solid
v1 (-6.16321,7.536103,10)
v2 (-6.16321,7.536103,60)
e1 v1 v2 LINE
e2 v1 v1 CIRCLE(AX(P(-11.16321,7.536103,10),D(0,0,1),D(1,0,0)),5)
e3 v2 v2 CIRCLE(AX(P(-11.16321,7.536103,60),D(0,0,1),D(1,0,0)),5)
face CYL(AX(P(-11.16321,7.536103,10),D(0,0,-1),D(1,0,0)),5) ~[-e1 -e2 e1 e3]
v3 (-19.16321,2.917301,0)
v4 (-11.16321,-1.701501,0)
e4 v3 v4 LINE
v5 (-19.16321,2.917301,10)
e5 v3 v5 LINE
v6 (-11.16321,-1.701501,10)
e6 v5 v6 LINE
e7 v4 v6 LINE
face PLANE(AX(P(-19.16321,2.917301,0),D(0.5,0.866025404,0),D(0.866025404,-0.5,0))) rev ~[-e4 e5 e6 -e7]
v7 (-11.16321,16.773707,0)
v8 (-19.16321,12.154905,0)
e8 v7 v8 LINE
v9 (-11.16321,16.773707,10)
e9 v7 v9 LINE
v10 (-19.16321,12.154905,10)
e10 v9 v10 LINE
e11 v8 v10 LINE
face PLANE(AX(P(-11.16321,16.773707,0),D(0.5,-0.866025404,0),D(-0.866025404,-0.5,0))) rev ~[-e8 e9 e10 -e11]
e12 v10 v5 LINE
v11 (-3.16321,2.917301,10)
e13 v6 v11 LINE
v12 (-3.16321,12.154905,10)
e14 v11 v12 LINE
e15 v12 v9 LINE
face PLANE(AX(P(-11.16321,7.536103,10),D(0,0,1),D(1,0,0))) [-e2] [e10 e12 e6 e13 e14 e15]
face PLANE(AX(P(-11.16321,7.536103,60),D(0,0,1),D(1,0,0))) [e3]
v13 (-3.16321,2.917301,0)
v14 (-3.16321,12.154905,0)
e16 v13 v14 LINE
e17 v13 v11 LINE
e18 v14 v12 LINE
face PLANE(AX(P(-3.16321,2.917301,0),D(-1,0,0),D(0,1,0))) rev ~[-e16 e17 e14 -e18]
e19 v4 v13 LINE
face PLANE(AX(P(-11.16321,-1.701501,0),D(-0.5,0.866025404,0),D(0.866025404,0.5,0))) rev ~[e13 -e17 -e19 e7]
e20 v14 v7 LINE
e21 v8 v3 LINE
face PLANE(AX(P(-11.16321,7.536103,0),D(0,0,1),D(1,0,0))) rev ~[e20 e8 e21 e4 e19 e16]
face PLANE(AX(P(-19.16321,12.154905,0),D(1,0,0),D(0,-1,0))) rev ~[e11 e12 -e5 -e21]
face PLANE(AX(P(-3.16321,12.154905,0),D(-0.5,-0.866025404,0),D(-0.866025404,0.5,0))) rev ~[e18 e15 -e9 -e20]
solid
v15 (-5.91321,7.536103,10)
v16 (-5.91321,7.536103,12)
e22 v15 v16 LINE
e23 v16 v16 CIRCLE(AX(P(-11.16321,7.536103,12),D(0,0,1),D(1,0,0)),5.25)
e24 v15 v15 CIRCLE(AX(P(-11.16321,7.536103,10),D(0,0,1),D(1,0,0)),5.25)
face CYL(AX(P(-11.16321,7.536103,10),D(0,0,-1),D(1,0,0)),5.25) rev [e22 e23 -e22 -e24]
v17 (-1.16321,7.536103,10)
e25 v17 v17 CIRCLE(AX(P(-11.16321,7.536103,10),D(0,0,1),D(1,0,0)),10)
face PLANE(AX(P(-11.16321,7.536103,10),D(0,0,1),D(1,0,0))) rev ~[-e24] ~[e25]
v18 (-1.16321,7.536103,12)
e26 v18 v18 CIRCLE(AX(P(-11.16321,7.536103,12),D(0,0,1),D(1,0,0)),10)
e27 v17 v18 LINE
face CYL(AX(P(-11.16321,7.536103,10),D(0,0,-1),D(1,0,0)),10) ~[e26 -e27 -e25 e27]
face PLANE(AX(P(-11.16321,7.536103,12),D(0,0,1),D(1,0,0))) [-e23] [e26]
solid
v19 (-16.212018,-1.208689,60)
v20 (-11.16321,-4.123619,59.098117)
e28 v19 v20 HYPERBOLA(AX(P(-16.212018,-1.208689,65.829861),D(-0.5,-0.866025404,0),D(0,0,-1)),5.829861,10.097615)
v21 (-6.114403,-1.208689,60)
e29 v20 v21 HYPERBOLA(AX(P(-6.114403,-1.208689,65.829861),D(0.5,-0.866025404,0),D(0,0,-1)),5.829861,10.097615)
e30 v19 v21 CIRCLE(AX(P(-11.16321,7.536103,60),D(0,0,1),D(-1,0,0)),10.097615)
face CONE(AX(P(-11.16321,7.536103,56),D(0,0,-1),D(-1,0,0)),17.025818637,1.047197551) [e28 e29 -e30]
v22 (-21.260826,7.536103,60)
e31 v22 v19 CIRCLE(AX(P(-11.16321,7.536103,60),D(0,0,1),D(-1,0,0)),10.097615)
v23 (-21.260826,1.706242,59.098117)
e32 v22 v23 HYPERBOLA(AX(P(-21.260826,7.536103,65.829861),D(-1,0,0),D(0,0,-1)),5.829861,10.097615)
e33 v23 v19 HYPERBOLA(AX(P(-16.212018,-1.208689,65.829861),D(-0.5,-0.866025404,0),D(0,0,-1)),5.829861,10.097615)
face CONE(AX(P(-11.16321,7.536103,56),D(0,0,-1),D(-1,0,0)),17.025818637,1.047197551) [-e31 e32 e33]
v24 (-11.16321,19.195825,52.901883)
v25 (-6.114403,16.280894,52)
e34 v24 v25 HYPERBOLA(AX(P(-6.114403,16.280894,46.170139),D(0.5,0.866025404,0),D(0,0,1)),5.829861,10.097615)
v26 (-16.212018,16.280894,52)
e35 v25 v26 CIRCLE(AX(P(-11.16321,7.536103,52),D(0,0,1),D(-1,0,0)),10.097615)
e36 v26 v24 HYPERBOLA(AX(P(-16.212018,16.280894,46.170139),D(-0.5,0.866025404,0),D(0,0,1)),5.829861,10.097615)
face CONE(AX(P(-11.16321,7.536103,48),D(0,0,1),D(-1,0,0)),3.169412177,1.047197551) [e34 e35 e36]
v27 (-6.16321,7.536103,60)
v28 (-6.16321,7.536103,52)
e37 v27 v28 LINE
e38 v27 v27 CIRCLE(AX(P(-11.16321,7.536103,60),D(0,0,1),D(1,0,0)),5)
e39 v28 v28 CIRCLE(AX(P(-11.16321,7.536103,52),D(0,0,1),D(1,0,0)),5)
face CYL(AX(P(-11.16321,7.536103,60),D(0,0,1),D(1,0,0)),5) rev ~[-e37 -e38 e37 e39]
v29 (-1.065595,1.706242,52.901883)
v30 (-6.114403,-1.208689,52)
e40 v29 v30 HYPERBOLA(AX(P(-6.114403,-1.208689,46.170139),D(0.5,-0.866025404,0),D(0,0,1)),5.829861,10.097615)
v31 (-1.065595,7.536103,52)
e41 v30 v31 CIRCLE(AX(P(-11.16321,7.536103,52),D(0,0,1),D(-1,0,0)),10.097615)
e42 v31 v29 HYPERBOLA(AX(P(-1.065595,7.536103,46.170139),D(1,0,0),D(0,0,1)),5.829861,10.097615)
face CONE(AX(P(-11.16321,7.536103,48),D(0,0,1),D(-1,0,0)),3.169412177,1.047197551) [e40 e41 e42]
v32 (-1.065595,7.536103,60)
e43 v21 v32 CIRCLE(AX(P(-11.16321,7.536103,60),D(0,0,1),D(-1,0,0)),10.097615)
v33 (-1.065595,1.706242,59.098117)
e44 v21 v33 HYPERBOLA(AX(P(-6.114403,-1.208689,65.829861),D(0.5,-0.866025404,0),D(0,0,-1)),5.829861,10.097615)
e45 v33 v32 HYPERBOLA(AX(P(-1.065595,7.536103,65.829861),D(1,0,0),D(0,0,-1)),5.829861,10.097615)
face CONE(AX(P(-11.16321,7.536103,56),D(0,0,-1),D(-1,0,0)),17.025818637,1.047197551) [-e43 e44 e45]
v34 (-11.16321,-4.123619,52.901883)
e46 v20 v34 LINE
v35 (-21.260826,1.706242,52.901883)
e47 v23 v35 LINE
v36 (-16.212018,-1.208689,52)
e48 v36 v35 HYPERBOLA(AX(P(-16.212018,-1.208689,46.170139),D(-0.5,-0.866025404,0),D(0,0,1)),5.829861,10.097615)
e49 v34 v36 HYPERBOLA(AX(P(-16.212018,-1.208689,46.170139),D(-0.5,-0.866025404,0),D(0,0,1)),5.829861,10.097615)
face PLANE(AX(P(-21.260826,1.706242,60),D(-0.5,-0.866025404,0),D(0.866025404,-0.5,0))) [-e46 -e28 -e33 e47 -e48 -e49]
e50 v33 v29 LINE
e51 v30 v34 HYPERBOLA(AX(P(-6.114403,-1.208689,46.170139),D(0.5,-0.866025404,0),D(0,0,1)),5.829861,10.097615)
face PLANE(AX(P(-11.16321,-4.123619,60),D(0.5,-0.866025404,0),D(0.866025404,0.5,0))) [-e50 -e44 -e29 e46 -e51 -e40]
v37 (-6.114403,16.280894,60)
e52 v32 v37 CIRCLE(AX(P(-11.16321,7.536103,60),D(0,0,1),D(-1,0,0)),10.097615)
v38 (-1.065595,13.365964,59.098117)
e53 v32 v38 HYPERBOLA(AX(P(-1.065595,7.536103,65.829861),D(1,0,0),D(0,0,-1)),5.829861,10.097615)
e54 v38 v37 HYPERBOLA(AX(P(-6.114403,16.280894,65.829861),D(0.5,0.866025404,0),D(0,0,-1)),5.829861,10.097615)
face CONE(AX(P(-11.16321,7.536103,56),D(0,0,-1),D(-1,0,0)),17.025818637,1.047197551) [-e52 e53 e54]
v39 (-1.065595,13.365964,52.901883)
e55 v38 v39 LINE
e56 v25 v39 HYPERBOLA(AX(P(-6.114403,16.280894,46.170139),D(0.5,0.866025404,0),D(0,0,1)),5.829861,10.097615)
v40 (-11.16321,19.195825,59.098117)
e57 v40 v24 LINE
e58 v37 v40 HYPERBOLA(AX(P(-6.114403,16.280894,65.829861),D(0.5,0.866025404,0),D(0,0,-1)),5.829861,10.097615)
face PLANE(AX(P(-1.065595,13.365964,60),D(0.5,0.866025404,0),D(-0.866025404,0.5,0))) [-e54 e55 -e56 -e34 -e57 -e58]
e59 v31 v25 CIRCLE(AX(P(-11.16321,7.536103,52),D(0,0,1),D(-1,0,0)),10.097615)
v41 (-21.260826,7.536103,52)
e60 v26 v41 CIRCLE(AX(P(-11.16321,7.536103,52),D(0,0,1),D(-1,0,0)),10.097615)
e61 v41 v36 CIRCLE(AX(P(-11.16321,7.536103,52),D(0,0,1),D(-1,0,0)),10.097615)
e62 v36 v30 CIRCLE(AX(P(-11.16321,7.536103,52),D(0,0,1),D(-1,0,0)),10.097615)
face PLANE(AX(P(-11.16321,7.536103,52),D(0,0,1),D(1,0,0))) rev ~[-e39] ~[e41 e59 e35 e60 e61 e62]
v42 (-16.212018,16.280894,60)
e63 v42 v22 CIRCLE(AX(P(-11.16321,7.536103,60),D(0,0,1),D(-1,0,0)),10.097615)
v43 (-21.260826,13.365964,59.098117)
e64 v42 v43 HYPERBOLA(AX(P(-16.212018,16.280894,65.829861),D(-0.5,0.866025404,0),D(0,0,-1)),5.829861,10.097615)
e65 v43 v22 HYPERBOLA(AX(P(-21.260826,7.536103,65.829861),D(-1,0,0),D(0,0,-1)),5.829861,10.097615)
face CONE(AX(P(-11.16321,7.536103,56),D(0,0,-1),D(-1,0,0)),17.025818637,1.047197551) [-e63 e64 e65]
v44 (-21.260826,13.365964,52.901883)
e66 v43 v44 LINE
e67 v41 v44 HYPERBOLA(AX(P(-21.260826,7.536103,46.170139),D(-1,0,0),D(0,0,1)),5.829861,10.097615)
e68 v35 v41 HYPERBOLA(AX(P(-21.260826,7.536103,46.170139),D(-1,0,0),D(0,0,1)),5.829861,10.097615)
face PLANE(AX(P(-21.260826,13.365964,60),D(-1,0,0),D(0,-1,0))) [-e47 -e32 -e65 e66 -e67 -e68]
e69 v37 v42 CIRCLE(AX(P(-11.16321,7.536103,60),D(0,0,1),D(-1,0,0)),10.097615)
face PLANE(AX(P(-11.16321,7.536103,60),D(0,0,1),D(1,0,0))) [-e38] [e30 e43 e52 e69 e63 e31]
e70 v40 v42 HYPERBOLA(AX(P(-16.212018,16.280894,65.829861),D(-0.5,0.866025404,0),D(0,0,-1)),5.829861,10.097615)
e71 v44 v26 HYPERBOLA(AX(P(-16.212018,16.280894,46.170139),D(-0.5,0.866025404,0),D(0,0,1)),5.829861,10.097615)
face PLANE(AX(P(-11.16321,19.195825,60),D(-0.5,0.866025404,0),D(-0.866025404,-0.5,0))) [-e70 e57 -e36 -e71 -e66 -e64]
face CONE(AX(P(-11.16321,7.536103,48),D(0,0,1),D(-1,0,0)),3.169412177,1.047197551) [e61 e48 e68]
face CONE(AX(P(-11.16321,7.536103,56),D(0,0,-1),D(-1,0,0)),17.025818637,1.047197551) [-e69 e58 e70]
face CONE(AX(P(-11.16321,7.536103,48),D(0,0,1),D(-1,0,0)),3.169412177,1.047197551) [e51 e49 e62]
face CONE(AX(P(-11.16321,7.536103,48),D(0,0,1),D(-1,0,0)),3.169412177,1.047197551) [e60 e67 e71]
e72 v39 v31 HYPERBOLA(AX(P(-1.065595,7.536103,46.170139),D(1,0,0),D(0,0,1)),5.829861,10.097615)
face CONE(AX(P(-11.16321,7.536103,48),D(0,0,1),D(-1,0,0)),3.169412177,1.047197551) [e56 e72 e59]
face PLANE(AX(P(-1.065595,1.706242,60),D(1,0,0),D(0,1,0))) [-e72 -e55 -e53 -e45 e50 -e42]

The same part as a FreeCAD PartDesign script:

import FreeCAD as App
import Part
import Sketcher

V = App.Vector
Q = App.Units.Quantity

doc = App.newDocument("Part")
body = doc.addObject("PartDesign::Body", "Body")

# Sketch on XY plane
sketch1 = doc.addObject("Sketcher::SketchObject", "Sketch")
body.addObject(sketch1)
sketch1.AttachmentSupport = (doc.XY_Plane, [""])
sketch1.MapMode = "FlatFace"
sketch1.addGeometry(Part.LineSegment(V(-11, -2, 0), V(-3, 3, 0)), False)
sketch1.addGeometry(Part.LineSegment(V(-3, 3, 0), V(-3, 12, 0)), False)
sketch1.addGeometry(Part.LineSegment(V(-3, 12, 0), V(-11, 17, 0)), False)
sketch1.addGeometry(Part.LineSegment(V(-11, 17, 0), V(-19, 12, 0)), False)
sketch1.addGeometry(Part.LineSegment(V(-19, 12, 0), V(-19, 3, 0)), False)
sketch1.addGeometry(Part.LineSegment(V(-19, 3, 0), V(-11, -2, 0)), False)
sketch1.addConstraint(Sketcher.Constraint("Coincident", 0, 2, 1, 1))
sketch1.addConstraint(Sketcher.Constraint("Coincident", 1, 2, 2, 1))
sketch1.addConstraint(Sketcher.Constraint("Coincident", 2, 2, 3, 1))
sketch1.addConstraint(Sketcher.Constraint("Coincident", 3, 2, 4, 1))
sketch1.addConstraint(Sketcher.Constraint("Coincident", 4, 2, 5, 1))
sketch1.addConstraint(Sketcher.Constraint("Coincident", 5, 2, 0, 1))
sketch1.addConstraint(Sketcher.Constraint("Vertical", 1))
sketch1.addConstraint(Sketcher.Constraint("Vertical", 4))
sketch1.addConstraint(Sketcher.Constraint("Parallel", 0, 3))
sketch1.addConstraint(Sketcher.Constraint("Parallel", 2, 5))
sketch1.addConstraint(Sketcher.Constraint("Horizontal", 1, 2, 3, 2))
sketch1.addConstraint(Sketcher.Constraint("Horizontal", 0, 2, 4, 2))
sketch1.addConstraint(Sketcher.Constraint("Vertical", 2, 2, 5, 2))
sketch1.addConstraint(Sketcher.Constraint("Angle", 0, Q("30 deg")))
sketch1.addConstraint(Sketcher.Constraint("DistanceX", 2, 2, 1, 2, Q("8 mm")))
sketch1.addConstraint(Sketcher.Constraint("DistanceY", -1, 1, 0, 2, Q("2.917301 mm")))
sketch1.addConstraint(Sketcher.Constraint("DistanceY", 1, 1, 1, 2, Q("9.237604 mm")))
sketch1.addConstraint(Sketcher.Constraint("DistanceX", 0, 2, -1, 1, Q("3.16321 mm")))
pad1 = doc.addObject("PartDesign::Pad", "Pad")
body.addObject(pad1)
pad1.Profile = sketch1
pad1.Length = 10

# Sketch on XY plane
sketch2 = doc.addObject("Sketcher::SketchObject", "Sketch001")
body.addObject(sketch2)
sketch2.AttachmentSupport = (doc.XY_Plane, [""])
sketch2.MapMode = "FlatFace"
sketch2.AttachmentOffset = App.Placement(V(0, 0, 10), App.Rotation())
sketch2.addGeometry(Part.Circle(V(-11, 8, 0), V(0, 0, 1), 5), False)
sketch2.addConstraint(Sketcher.Constraint("Diameter", 0, Q("10 mm")))
sketch2.addConstraint(Sketcher.Constraint("DistanceX", 0, 3, -1, 1, Q("11.16321 mm")))
sketch2.addConstraint(Sketcher.Constraint("DistanceY", -1, 1, 0, 3, Q("7.536103 mm")))
pad2 = doc.addObject("PartDesign::Pad", "Pad001")
body.addObject(pad2)
pad2.Profile = sketch2
pad2.Length = 50
body2 = doc.addObject("PartDesign::Body", "Body001")

# Sketch on XY plane
sketch3 = doc.addObject("Sketcher::SketchObject", "Sketch002")
body2.addObject(sketch3)
sketch3.AttachmentSupport = (doc.getObject("XY_Plane001"), [""])
sketch3.MapMode = "FlatFace"
sketch3.AttachmentOffset = App.Placement(V(0, 0, 10), App.Rotation())
sketch3.addGeometry(Part.Circle(V(-11, 8, 0), V(0, 0, 1), 10), False)
sketch3.addGeometry(Part.Circle(V(-11, 8, 0), V(0, 0, 1), 5), False)
sketch3.addConstraint(Sketcher.Constraint("Coincident", 1, 3, 0, 3))
sketch3.addConstraint(Sketcher.Constraint("Diameter", 0, Q("20 mm")))
sketch3.addConstraint(Sketcher.Constraint("Diameter", 1, Q("10.5 mm")))
sketch3.addConstraint(Sketcher.Constraint("DistanceX", 0, 3, -1, 1, Q("11.16321 mm")))
sketch3.addConstraint(Sketcher.Constraint("DistanceY", -1, 1, 0, 3, Q("7.536103 mm")))
pad3 = doc.addObject("PartDesign::Pad", "Pad002")
body2.addObject(pad3)
pad3.Profile = sketch3
pad3.Length = 2
body3 = doc.addObject("PartDesign::Body", "Body002")

# Sketch on XY plane
sketch4 = doc.addObject("Sketcher::SketchObject", "Sketch003")
body3.addObject(sketch4)
sketch4.AttachmentSupport = (doc.getObject("XY_Plane002"), [""])
sketch4.MapMode = "FlatFace"
sketch4.AttachmentOffset = App.Placement(V(0, 0, 60), App.Rotation())
sketch4.addGeometry(Part.LineSegment(V(-11, -4, 0), V(-1, 2, 0)), False)
sketch4.addGeometry(Part.LineSegment(V(-1, 2, 0), V(-1, 13, 0)), False)
sketch4.addGeometry(Part.LineSegment(V(-1, 13, 0), V(-11, 19, 0)), False)
sketch4.addGeometry(Part.LineSegment(V(-11, 19, 0), V(-21, 13, 0)), False)
sketch4.addGeometry(Part.LineSegment(V(-21, 13, 0), V(-21, 2, 0)), False)
sketch4.addGeometry(Part.LineSegment(V(-21, 2, 0), V(-11, -4, 0)), False)
sketch4.addGeometry(Part.Circle(V(-11, 8, 0), V(0, 0, 1), 5), False)
sketch4.addConstraint(Sketcher.Constraint("Coincident", 0, 2, 1, 1))
sketch4.addConstraint(Sketcher.Constraint("Coincident", 1, 2, 2, 1))
sketch4.addConstraint(Sketcher.Constraint("Coincident", 2, 2, 3, 1))
sketch4.addConstraint(Sketcher.Constraint("Coincident", 3, 2, 4, 1))
sketch4.addConstraint(Sketcher.Constraint("Coincident", 4, 2, 5, 1))
sketch4.addConstraint(Sketcher.Constraint("Coincident", 5, 2, 0, 1))
sketch4.addConstraint(Sketcher.Constraint("Vertical", 1))
sketch4.addConstraint(Sketcher.Constraint("Vertical", 4))
sketch4.addConstraint(Sketcher.Constraint("Parallel", 0, 3))
sketch4.addConstraint(Sketcher.Constraint("Parallel", 2, 5))
sketch4.addConstraint(Sketcher.Constraint("Horizontal", 1, 2, 3, 2))
sketch4.addConstraint(Sketcher.Constraint("Horizontal", 0, 2, 4, 2))
sketch4.addConstraint(Sketcher.Constraint("Vertical", 6, 3, 2, 2))
sketch4.addConstraint(Sketcher.Constraint("Vertical", 2, 2, 5, 2))
sketch4.addConstraint(Sketcher.Constraint("Diameter", 6, Q("10 mm")))
sketch4.addConstraint(Sketcher.Constraint("Angle", 0, Q("30 deg")))
sketch4.addConstraint(Sketcher.Constraint("DistanceY", 1, 1, 1, 2, Q("11.659722 mm")))
sketch4.addConstraint(Sketcher.Constraint("Distance", 0, Q("11.659722 mm")))
sketch4.addConstraint(Sketcher.Constraint("DistanceX", 6, 3, -1, 1, Q("11.16321 mm")))
sketch4.addConstraint(Sketcher.Constraint("DistanceY", -1, 1, 0, 2, Q("1.706242 mm")))
sketch4.addConstraint(Sketcher.Constraint("DistanceY", 0, 2, 6, 3, Q("5.829861 mm")))
pad4 = doc.addObject("PartDesign::Pad", "Pad003")
body3.addObject(pad4)
pad4.Profile = sketch4
pad4.Length = 8
pad4.Reversed = True

# Sketch on XZ plane
sketch5 = doc.addObject("Sketcher::SketchObject", "Sketch004")
body3.addObject(sketch5)
sketch5.AttachmentSupport = (doc.getObject("XZ_Plane002"), [""])
sketch5.MapMode = "FlatFace"
sketch5.AttachmentOffset = App.Placement(V(0, 0, -7.536103), App.Rotation())
sketch5.addGeometry(Part.LineSegment(V(-28.2, 56, 0), V(-14.3, 64, 0)), False)
sketch5.addGeometry(Part.LineSegment(V(-14.3, 64, 0), V(-14.3, 68.5, 0)), False)
sketch5.addGeometry(Part.LineSegment(V(-14.3, 68.5, 0), V(-39.3, 68.5, 0)), False)
sketch5.addGeometry(Part.LineSegment(V(-39.3, 68.5, 0), V(-39.3, 43.5, 0)), False)
sketch5.addGeometry(Part.LineSegment(V(-39.3, 43.5, 0), V(-14.3, 43.5, 0)), False)
sketch5.addGeometry(Part.LineSegment(V(-14.3, 43.5, 0), V(-14.3, 48, 0)), False)
sketch5.addGeometry(Part.LineSegment(V(-14.3, 48, 0), V(-28.2, 56, 0)), False)
sketch5.addGeometry(Part.LineSegment(V(-11.2, 43.5, 0), V(-11.2, 68.5, 0)), True)  # axis
sketch5.addConstraint(Sketcher.Constraint("Coincident", 0, 2, 1, 1))
sketch5.addConstraint(Sketcher.Constraint("Coincident", 1, 2, 2, 1))
sketch5.addConstraint(Sketcher.Constraint("Coincident", 2, 2, 3, 1))
sketch5.addConstraint(Sketcher.Constraint("Coincident", 3, 2, 4, 1))
sketch5.addConstraint(Sketcher.Constraint("Coincident", 4, 2, 5, 1))
sketch5.addConstraint(Sketcher.Constraint("Coincident", 5, 2, 6, 1))
sketch5.addConstraint(Sketcher.Constraint("Coincident", 6, 2, 0, 1))
sketch5.addConstraint(Sketcher.Constraint("Vertical", 1))
sketch5.addConstraint(Sketcher.Constraint("Horizontal", 2))
sketch5.addConstraint(Sketcher.Constraint("Vertical", 3))
sketch5.addConstraint(Sketcher.Constraint("Horizontal", 4))
sketch5.addConstraint(Sketcher.Constraint("Vertical", 5))
sketch5.addConstraint(Sketcher.Constraint("Vertical", 7))
sketch5.addConstraint(Sketcher.Constraint("Horizontal", 4, 2, 7, 1))
sketch5.addConstraint(Sketcher.Constraint("Horizontal", 2, 2, 7, 2))
sketch5.addConstraint(Sketcher.Constraint("Vertical", 1, 2, 4, 2))
sketch5.addConstraint(Sketcher.Constraint("Equal", 4, 3))
sketch5.addConstraint(Sketcher.Constraint("Equal", 1, 5))
sketch5.addConstraint(Sketcher.Constraint("Equal", 0, 6))
sketch5.addConstraint(Sketcher.Constraint("DistanceX", 2, 2, 2, 1, Q("25 mm")))
sketch5.addConstraint(Sketcher.Constraint("Angle", 0, Q("30 deg")))
sketch5.addConstraint(Sketcher.Constraint("Distance", 0, Q("16 mm")))
sketch5.addConstraint(Sketcher.Constraint("DistanceY", -1, 1, 0, 2, Q("64 mm")))
sketch5.addConstraint(Sketcher.Constraint("DistanceX", 6, 2, -1, 1, Q("28.189029 mm")))
sketch5.addConstraint(Sketcher.Constraint("DistanceX", 7, 1, -1, 1, Q("11.16321 mm")))
groove = doc.addObject("PartDesign::Groove", "Groove")
body3.addObject(groove)
groove.Profile = sketch5
groove.ReferenceAxis = (sketch5, ["Axis0"])
groove.Angle = 360

doc.recompute()
